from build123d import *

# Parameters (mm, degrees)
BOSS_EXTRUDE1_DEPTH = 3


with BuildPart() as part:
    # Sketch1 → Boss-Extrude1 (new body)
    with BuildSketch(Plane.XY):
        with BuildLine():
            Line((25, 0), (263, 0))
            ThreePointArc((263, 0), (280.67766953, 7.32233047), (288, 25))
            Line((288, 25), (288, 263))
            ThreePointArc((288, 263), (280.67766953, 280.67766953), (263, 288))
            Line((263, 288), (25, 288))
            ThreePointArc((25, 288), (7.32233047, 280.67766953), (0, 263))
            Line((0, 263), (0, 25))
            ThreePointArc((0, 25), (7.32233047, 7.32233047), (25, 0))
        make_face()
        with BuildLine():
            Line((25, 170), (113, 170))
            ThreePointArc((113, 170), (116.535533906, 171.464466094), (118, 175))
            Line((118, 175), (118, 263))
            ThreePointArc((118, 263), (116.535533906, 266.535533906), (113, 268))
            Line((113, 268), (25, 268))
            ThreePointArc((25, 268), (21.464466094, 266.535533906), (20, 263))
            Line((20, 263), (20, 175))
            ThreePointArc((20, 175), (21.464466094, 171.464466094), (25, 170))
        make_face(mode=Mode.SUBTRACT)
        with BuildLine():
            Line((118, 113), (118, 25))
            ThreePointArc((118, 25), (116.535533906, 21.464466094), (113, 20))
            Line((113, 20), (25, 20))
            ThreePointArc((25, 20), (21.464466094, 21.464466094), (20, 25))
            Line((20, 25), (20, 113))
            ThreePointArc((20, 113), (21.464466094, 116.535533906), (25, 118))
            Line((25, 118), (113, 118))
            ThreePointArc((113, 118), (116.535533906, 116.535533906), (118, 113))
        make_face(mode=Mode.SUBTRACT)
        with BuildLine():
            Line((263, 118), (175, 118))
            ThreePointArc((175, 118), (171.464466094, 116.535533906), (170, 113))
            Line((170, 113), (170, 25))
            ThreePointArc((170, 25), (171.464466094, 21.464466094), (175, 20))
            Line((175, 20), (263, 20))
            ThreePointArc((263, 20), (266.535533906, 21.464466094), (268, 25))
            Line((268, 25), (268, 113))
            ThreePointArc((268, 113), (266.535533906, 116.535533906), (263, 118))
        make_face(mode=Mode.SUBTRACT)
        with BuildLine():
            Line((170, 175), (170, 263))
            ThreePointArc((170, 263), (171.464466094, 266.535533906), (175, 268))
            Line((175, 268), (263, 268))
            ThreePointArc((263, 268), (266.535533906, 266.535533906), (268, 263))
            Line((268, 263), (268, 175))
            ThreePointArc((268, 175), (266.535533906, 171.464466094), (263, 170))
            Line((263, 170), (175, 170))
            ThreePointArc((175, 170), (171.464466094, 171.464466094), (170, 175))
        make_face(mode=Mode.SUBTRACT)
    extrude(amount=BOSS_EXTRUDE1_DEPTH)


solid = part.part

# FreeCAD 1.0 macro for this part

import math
import FreeCAD as App
import Part
import Sketcher
Q = App.Units.Quantity

doc = App.newDocument("Part")
body = doc.addObject("PartDesign::Body", "Body")

sketch1 = body.newObject("Sketcher::SketchObject", "Sketch")
sketch1.AttachmentSupport = (doc.getObject("XY_Plane"), [""])
sketch1.MapMode = "FlatFace"
sketch1.addGeometry([
    Part.LineSegment(App.Vector(25, 0, 0), App.Vector(263, 0, 0)),
    Part.ArcOfCircle(Part.Circle(App.Vector(263, 25, 0), App.Vector(0, 0, 1), 25), math.radians(-90), math.radians(0)),
    Part.LineSegment(App.Vector(288, 25, 0), App.Vector(288, 263, 0)),
    Part.ArcOfCircle(Part.Circle(App.Vector(263, 263, 0), App.Vector(0, 0, 1), 25), math.radians(0), math.radians(90)),
    Part.LineSegment(App.Vector(263, 288, 0), App.Vector(25, 288, 0)),
    Part.ArcOfCircle(Part.Circle(App.Vector(25, 263, 0), App.Vector(0, 0, 1), 25), math.radians(90), math.radians(180)),
    Part.LineSegment(App.Vector(0, 263, 0), App.Vector(0, 25, 0)),
    Part.ArcOfCircle(Part.Circle(App.Vector(25, 25, 0), App.Vector(0, 0, 1), 25), math.radians(180), math.radians(270)),
    Part.ArcOfCircle(Part.Circle(App.Vector(113, 113, 0), App.Vector(0, 0, 1), 5), math.radians(0), math.radians(90)),
    Part.LineSegment(App.Vector(118, 113, 0), App.Vector(118, 25, 0)),
    Part.ArcOfCircle(Part.Circle(App.Vector(113, 25, 0), App.Vector(0, 0, 1), 5), math.radians(-90), math.radians(0)),
    Part.LineSegment(App.Vector(113, 20, 0), App.Vector(25, 20, 0)),
    Part.ArcOfCircle(Part.Circle(App.Vector(25, 25, 0), App.Vector(0, 0, 1), 5), math.radians(180), math.radians(270)),
    Part.LineSegment(App.Vector(20, 25, 0), App.Vector(20, 113, 0)),
    Part.ArcOfCircle(Part.Circle(App.Vector(25, 113, 0), App.Vector(0, 0, 1), 5), math.radians(90), math.radians(180)),
    Part.LineSegment(App.Vector(25, 118, 0), App.Vector(113, 118, 0)),
    Part.LineSegment(App.Vector(175, 118, 0), App.Vector(263, 118, 0)),
    Part.ArcOfCircle(Part.Circle(App.Vector(263, 113, 0), App.Vector(0, 0, 1), 5), math.radians(0), math.radians(90)),
    Part.LineSegment(App.Vector(268, 113, 0), App.Vector(268, 25, 0)),
    Part.ArcOfCircle(Part.Circle(App.Vector(263, 25, 0), App.Vector(0, 0, 1), 5), math.radians(-90), math.radians(0)),
    Part.LineSegment(App.Vector(263, 20, 0), App.Vector(175, 20, 0)),
    Part.ArcOfCircle(Part.Circle(App.Vector(175, 25, 0), App.Vector(0, 0, 1), 5), math.radians(180), math.radians(270)),
    Part.LineSegment(App.Vector(170, 25, 0), App.Vector(170, 113, 0)),
    Part.ArcOfCircle(Part.Circle(App.Vector(175, 113, 0), App.Vector(0, 0, 1), 5), math.radians(90), math.radians(180)),
    Part.LineSegment(App.Vector(113, 170, 0), App.Vector(25, 170, 0)),
    Part.ArcOfCircle(Part.Circle(App.Vector(25, 175, 0), App.Vector(0, 0, 1), 5), math.radians(180), math.radians(270)),
    Part.LineSegment(App.Vector(20, 175, 0), App.Vector(20, 263, 0)),
    Part.ArcOfCircle(Part.Circle(App.Vector(25, 263, 0), App.Vector(0, 0, 1), 5), math.radians(90), math.radians(180)),
    Part.LineSegment(App.Vector(25, 268, 0), App.Vector(113, 268, 0)),
    Part.ArcOfCircle(Part.Circle(App.Vector(113, 263, 0), App.Vector(0, 0, 1), 5), math.radians(0), math.radians(90)),
    Part.LineSegment(App.Vector(118, 263, 0), App.Vector(118, 175, 0)),
    Part.ArcOfCircle(Part.Circle(App.Vector(113, 175, 0), App.Vector(0, 0, 1), 5), math.radians(-90), math.radians(0)),
    Part.ArcOfCircle(Part.Circle(App.Vector(175, 175, 0), App.Vector(0, 0, 1), 5), math.radians(180), math.radians(270)),
    Part.LineSegment(App.Vector(170, 175, 0), App.Vector(170, 263, 0)),
    Part.ArcOfCircle(Part.Circle(App.Vector(175, 263, 0), App.Vector(0, 0, 1), 5), math.radians(90), math.radians(180)),
    Part.LineSegment(App.Vector(175, 268, 0), App.Vector(263, 268, 0)),
    Part.ArcOfCircle(Part.Circle(App.Vector(263, 263, 0), App.Vector(0, 0, 1), 5), math.radians(0), math.radians(90)),
    Part.LineSegment(App.Vector(268, 263, 0), App.Vector(268, 175, 0)),
    Part.ArcOfCircle(Part.Circle(App.Vector(263, 175, 0), App.Vector(0, 0, 1), 5), math.radians(-90), math.radians(0)),
    Part.LineSegment(App.Vector(263, 170, 0), App.Vector(175, 170, 0)),
], False)
sketch1.addConstraint([
    Sketcher.Constraint("Tangent", 0, 2, 1, 1),
    Sketcher.Constraint("Tangent", 1, 2, 2, 1),
    Sketcher.Constraint("Tangent", 2, 2, 3, 1),
    Sketcher.Constraint("Tangent", 3, 2, 4, 1),
    Sketcher.Constraint("Tangent", 4, 2, 5, 1),
    Sketcher.Constraint("Tangent", 5, 2, 6, 1),
    Sketcher.Constraint("Tangent", 6, 2, 7, 1),
    Sketcher.Constraint("Tangent", 7, 2, 0, 1),
    Sketcher.Constraint("Tangent", 8, 1, 9, 1),
    Sketcher.Constraint("Tangent", 9, 2, 10, 2),
    Sketcher.Constraint("Tangent", 10, 1, 11, 1),
    Sketcher.Constraint("Tangent", 11, 2, 12, 2),
    Sketcher.Constraint("Tangent", 12, 1, 13, 1),
    Sketcher.Constraint("Tangent", 13, 2, 14, 2),
    Sketcher.Constraint("Tangent", 14, 1, 15, 1),
    Sketcher.Constraint("Tangent", 15, 2, 8, 2),
    Sketcher.Constraint("Tangent", 16, 2, 17, 2),
    Sketcher.Constraint("Tangent", 17, 1, 18, 1),
    Sketcher.Constraint("Tangent", 18, 2, 19, 2),
    Sketcher.Constraint("Tangent", 19, 1, 20, 1),
    Sketcher.Constraint("Tangent", 20, 2, 21, 2),
    Sketcher.Constraint("Tangent", 21, 1, 22, 1),
    Sketcher.Constraint("Tangent", 22, 2, 23, 2),
    Sketcher.Constraint("Tangent", 23, 1, 16, 1),
    Sketcher.Constraint("Tangent", 24, 2, 25, 2),
    Sketcher.Constraint("Tangent", 25, 1, 26, 1),
    Sketcher.Constraint("Tangent", 26, 2, 27, 2),
    Sketcher.Constraint("Tangent", 27, 1, 28, 1),
    Sketcher.Constraint("Tangent", 28, 2, 29, 2),
    Sketcher.Constraint("Tangent", 29, 1, 30, 1),
    Sketcher.Constraint("Tangent", 30, 2, 31, 2),
    Sketcher.Constraint("Tangent", 31, 1, 24, 1),
    Sketcher.Constraint("Tangent", 32, 1, 33, 1),
    Sketcher.Constraint("Tangent", 33, 2, 34, 2),
    Sketcher.Constraint("Tangent", 34, 1, 35, 1),
    Sketcher.Constraint("Tangent", 35, 2, 36, 2),
    Sketcher.Constraint("Tangent", 36, 1, 37, 1),
    Sketcher.Constraint("Tangent", 37, 2, 38, 2),
    Sketcher.Constraint("Tangent", 38, 1, 39, 1),
    Sketcher.Constraint("Tangent", 39, 2, 32, 2),
    Sketcher.Constraint("Horizontal", 0),
    Sketcher.Constraint("Vertical", 2),
    Sketcher.Constraint("Horizontal", 4),
    Sketcher.Constraint("Vertical", 6),
    Sketcher.Constraint("Vertical", 9),
    Sketcher.Constraint("Horizontal", 11),
    Sketcher.Constraint("Vertical", 13),
    Sketcher.Constraint("Horizontal", 15),
    Sketcher.Constraint("Horizontal", 16),
    Sketcher.Constraint("Vertical", 18),
    Sketcher.Constraint("Horizontal", 20),
    Sketcher.Constraint("Vertical", 22),
    Sketcher.Constraint("Horizontal", 24),
    Sketcher.Constraint("Vertical", 26),
    Sketcher.Constraint("Horizontal", 28),
    Sketcher.Constraint("Vertical", 30),
    Sketcher.Constraint("Vertical", 33),
    Sketcher.Constraint("Horizontal", 35),
    Sketcher.Constraint("Vertical", 37),
    Sketcher.Constraint("Horizontal", 39),
    Sketcher.Constraint("Coincident", 12, 3, 7, 3),
    Sketcher.Constraint("Coincident", 19, 3, 1, 3),
    Sketcher.Constraint("Coincident", 27, 3, 5, 3),
    Sketcher.Constraint("Coincident", 36, 3, 3, 3),
    Sketcher.Constraint("Equal", 1, 3),
    Sketcher.Constraint("Equal", 3, 5),
    Sketcher.Constraint("Equal", 5, 7),
    Sketcher.Constraint("Equal", 8, 10),
    Sketcher.Constraint("Equal", 10, 12),
    Sketcher.Constraint("Equal", 12, 14),
    Sketcher.Constraint("Equal", 14, 17),
    Sketcher.Constraint("Equal", 17, 19),
    Sketcher.Constraint("Equal", 19, 21),
    Sketcher.Constraint("Equal", 21, 23),
    Sketcher.Constraint("Equal", 23, 25),
    Sketcher.Constraint("Equal", 25, 27),
    Sketcher.Constraint("Equal", 27, 29),
    Sketcher.Constraint("Equal", 29, 31),
    Sketcher.Constraint("Equal", 31, 32),
    Sketcher.Constraint("Equal", 32, 34),
    Sketcher.Constraint("Equal", 34, 36),
    Sketcher.Constraint("Equal", 36, 38),
    Sketcher.Constraint("PointOnObject", 0, 2, -1),
    Sketcher.Constraint("PointOnObject", 5, 2, -2),
    Sketcher.Constraint("Horizontal", 14, 3, 17, 3),
    Sketcher.Constraint("Horizontal", 31, 3, 32, 3),
    Sketcher.Constraint("Vertical", 10, 3, 29, 3),
    Sketcher.Constraint("Vertical", 23, 3, 32, 3),
    Sketcher.Constraint("Equal", 15, 16),
    Sketcher.Constraint("Equal", 4, 2),
    Sketcher.Constraint("Equal", 39, 9),
    Sketcher.Constraint("Equal", 22, 26),
    Sketcher.Constraint("Radius", 1, Q("25 mm")),
    Sketcher.Constraint("Radius", 8, Q("5 mm")),
    Sketcher.Constraint("DistanceX", 0, 1, 0, 2, Q("238 mm")),
    Sketcher.Constraint("DistanceX", 11, 2, 11, 1, Q("88 mm")),
])
pad1 = body.newObject("PartDesign::Pad", "Pad")
pad1.Profile = sketch1
pad1.Length = 3

doc.recompute()
